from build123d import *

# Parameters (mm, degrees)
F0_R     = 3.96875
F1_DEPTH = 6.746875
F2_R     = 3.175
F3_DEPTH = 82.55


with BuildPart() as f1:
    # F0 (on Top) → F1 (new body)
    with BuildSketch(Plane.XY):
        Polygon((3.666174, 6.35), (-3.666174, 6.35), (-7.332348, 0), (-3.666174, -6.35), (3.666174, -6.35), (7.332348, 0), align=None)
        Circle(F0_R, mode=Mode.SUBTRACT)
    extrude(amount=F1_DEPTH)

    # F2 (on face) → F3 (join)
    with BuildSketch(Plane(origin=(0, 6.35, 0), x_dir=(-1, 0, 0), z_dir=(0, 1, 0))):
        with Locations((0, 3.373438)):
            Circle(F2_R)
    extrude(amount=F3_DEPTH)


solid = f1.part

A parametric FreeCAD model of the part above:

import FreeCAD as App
import Part
import Sketcher
Q = App.Units.Quantity


def add_polygon(sketch, points):
    """Adds a closed chain of lines whose ends are joined by coincident constraints."""
    first, n = sketch.GeometryCount, len(points)
    for a, b in zip(points, points[1:] + points[:1]):
        sketch.addGeometry(Part.LineSegment(App.Vector(*a, 0), App.Vector(*b, 0)), False)
    for i in range(n):
        sketch.addConstraint(Sketcher.Constraint("Coincident", first + i, 2, first + (i + 1) % n, 1))

doc = App.newDocument("Part")
body = doc.addObject("PartDesign::Body", "Body")

sketch1 = body.newObject("Sketcher::SketchObject", "Sketch")
sketch1.AttachmentSupport = (doc.getObject("XY_Plane"), [""])
sketch1.MapMode = "FlatFace"
add_polygon(sketch1, [(3.7, 6.3), (-3.7, 6.3), (-7.3, 0), (-3.7, -6.3), (3.7, -6.3), (7.3, 0)])
sketch1.addGeometry(Part.Circle(App.Vector(0, 0, 0), App.Vector(0, 0, 1), 4), False)
sketch1.addConstraint(Sketcher.Constraint("Horizontal", 0))
sketch1.addConstraint(Sketcher.Constraint("Horizontal", 3))
sketch1.addConstraint(Sketcher.Constraint("Coincident", 6, 3, -1, 1))
sketch1.addConstraint(Sketcher.Constraint("Symmetric", 0, 2, 3, 2, -1, 1))
sketch1.addConstraint(Sketcher.Constraint("Symmetric", 1, 2, 4, 2, -1, 1))
sketch1.addConstraint(Sketcher.Constraint("PointOnObject", 1, 2, -1))
sketch1.addConstraint(Sketcher.Constraint("Parallel", 2, 5))
sketch1.addConstraint(Sketcher.Constraint("Vertical", 0, 2, 2, 2))
sketch1.addConstraint(Sketcher.Constraint("Diameter", 6, Q("0.3125 in")))
sketch1.addConstraint(Sketcher.Constraint("Angle", 1, Q("-119.999999 deg")))
sketch1.addConstraint(Sketcher.Constraint("DistanceY", 2, 2, 0, 2, Q("0.5 in")))
sketch1.addConstraint(Sketcher.Constraint("DistanceX", 0, 2, 0, 1, Q("7.332348 mm")))
pad1 = body.newObject("PartDesign::Pad", "Pad")
pad1.Profile = sketch1
pad1.Length = Q("0.265625 in")

sketch2 = body.newObject("Sketcher::SketchObject", "Sketch001")
sketch2.AttachmentSupport = (doc.getObject("XZ_Plane"), [""])
sketch2.MapMode = "FlatFace"
sketch2.AttachmentOffset = App.Placement(App.Vector(0, 0, -0.25 * 25.4), App.Rotation())
sketch2.addGeometry(Part.Circle(App.Vector(0, 3.4, 0), App.Vector(0, 0, 1), 3.2), False)
sketch2.addConstraint(Sketcher.Constraint("PointOnObject", 0, 3, -2))
sketch2.addConstraint(Sketcher.Constraint("Diameter", 0, Q("0.25 in")))
sketch2.addConstraint(Sketcher.Constraint("DistanceY", -1, 1, 0, 3, Q("3.373438 mm")))
pad2 = body.newObject("PartDesign::Pad", "Pad001")
pad2.Profile = sketch2
pad2.Length = Q("3.25 in")
pad2.Reversed = True

doc.recompute()
